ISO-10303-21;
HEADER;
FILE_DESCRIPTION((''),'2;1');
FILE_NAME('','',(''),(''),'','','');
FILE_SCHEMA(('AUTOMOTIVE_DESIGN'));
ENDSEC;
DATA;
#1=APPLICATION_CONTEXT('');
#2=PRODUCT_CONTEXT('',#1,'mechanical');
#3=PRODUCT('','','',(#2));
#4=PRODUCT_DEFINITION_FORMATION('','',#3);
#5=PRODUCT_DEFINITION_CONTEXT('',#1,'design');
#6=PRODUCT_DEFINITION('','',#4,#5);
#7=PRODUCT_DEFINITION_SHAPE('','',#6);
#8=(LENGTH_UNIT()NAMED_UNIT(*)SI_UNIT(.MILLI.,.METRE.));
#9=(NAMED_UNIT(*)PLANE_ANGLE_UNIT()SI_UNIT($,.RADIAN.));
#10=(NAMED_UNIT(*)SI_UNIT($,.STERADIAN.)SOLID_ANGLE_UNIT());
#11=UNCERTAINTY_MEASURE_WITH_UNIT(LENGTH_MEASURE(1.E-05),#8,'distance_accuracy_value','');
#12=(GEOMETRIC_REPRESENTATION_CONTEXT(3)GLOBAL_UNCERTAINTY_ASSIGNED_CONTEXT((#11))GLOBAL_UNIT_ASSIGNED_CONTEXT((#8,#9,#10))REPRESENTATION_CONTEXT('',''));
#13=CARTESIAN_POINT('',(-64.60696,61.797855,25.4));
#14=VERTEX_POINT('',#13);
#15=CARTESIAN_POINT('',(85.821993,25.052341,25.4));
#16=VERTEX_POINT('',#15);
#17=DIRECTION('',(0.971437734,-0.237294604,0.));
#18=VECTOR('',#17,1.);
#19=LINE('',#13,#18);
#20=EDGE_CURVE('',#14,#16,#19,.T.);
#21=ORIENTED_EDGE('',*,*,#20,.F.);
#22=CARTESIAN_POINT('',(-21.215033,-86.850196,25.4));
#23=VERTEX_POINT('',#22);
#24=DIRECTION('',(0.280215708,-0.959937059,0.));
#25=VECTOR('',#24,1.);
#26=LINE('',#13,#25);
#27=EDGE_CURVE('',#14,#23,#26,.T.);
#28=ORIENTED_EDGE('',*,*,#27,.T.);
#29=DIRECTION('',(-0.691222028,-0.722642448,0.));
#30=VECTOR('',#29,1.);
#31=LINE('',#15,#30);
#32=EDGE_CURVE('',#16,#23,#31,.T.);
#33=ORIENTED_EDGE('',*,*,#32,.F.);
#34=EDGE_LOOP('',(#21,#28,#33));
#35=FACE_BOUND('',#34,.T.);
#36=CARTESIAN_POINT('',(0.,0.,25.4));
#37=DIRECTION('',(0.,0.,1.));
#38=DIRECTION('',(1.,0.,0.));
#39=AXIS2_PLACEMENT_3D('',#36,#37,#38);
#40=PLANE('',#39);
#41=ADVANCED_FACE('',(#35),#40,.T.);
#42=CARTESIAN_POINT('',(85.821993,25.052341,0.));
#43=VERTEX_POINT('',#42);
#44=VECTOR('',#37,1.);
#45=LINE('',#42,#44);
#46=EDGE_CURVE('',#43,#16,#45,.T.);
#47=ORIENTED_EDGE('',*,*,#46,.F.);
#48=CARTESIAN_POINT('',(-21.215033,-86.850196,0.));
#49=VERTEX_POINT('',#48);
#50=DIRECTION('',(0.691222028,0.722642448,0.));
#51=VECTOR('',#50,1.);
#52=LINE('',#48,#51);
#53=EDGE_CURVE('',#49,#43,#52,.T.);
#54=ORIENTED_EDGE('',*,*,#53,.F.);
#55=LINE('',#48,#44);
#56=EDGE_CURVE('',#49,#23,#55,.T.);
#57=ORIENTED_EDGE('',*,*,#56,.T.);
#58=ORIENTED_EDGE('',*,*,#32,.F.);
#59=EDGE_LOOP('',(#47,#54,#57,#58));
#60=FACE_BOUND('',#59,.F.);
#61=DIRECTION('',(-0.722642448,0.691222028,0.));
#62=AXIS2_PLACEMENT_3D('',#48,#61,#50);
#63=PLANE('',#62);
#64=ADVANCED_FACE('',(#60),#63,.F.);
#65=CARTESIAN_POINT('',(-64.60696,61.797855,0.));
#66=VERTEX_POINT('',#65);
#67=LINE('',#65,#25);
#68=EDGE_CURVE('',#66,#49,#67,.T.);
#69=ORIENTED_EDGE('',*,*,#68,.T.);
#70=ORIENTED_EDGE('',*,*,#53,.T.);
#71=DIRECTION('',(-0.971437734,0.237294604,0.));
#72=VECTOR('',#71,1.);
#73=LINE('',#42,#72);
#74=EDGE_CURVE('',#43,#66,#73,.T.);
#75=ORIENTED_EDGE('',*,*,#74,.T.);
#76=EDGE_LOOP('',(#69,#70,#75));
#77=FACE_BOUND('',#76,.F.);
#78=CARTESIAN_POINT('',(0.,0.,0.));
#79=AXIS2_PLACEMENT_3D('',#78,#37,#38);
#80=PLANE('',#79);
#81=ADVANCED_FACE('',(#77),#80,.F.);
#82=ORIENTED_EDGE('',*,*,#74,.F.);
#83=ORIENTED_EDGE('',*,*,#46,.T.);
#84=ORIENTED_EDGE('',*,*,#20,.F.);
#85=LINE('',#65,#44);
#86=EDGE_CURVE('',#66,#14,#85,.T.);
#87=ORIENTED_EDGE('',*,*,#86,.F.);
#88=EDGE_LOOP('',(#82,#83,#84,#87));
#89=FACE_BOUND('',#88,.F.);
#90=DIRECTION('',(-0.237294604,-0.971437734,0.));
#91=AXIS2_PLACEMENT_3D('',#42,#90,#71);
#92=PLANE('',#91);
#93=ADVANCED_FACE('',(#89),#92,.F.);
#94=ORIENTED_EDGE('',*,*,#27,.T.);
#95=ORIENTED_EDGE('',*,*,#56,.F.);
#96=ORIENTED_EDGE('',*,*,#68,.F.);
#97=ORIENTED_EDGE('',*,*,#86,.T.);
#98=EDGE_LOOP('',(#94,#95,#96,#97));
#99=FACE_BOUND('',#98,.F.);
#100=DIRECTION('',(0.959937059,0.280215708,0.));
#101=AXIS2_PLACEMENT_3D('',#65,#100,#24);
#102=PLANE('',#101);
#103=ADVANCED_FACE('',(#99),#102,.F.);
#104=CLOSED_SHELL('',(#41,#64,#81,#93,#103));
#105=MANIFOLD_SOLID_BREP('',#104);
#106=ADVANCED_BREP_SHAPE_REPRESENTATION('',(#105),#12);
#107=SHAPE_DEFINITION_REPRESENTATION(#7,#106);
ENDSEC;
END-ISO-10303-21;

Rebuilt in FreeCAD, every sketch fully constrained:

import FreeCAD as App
import Part
import Sketcher
from FreeCAD import Vector
Q = App.Units.Quantity

doc = App.newDocument("Part")
body = doc.addObject("PartDesign::Body", "Body")

# Sketch on XY plane
sketch1 = doc.addObject("Sketcher::SketchObject", "Sketch")
body.addObject(sketch1)
sketch1.AttachmentSupport = (doc.XY_Plane, [""])
sketch1.MapMode = "FlatFace"
sketch1.addGeometry(Part.LineSegment(Vector(85.821993, 25.052341, 0), Vector(-64.60696, 61.797855, 0)), False)
sketch1.addGeometry(Part.LineSegment(Vector(-64.60696, 61.797855, 0), Vector(-21.215033, -86.850196, 0)), False)
sketch1.addGeometry(Part.LineSegment(Vector(-21.215033, -86.850196, 0), Vector(85.821993, 25.052341, 0)), False)
sketch1.addConstraint(Sketcher.Constraint("Coincident", 0, 2, 1, 1))
sketch1.addConstraint(Sketcher.Constraint("Coincident", 1, 2, 2, 1))
sketch1.addConstraint(Sketcher.Constraint("Coincident", 2, 2, 0, 1))
sketch1.addConstraint(Sketcher.Constraint("Equal", 0, 1))
sketch1.addConstraint(Sketcher.Constraint("Equal", 1, 2))
sketch1.addConstraint(Sketcher.Constraint("DistanceX", 0, 2, -1, 1, Q("64.60696 mm")))
sketch1.addConstraint(Sketcher.Constraint("DistanceY", -1, 1, 2, 2, Q("25.052341 mm")))
sketch1.addConstraint(Sketcher.Constraint("DistanceY", 1, 2, 0, 2, Q("148.648051 mm")))
sketch1.addConstraint(Sketcher.Constraint("Distance", 0, Q("154.851873 mm")))
pad1 = doc.addObject("PartDesign::Pad", "Pad")
body.addObject(pad1)
pad1.Profile = sketch1
pad1.Length = Q("1 in")

# Sketch on XY plane
sketch2 = doc.addObject("Sketcher::SketchObject", "Sketch001")
body.addObject(sketch2)
sketch2.AttachmentSupport = (doc.XY_Plane, [""])
sketch2.MapMode = "FlatFace"
sketch2.AttachmentOffset = App.Placement(Vector(0, 0, 1 * 25.4), App.Rotation())
sketch2.addGeometry(Part.LineSegment(Vector(32.30348, -30.898928, 0), Vector(10.607516, 43.425098, 0)), False)
sketch2.addGeometry(Part.LineSegment(Vector(10.607516, 43.425098, 0), Vector(-42.910996, -12.52617, 0)), False)
sketch2.addGeometry(Part.LineSegment(Vector(-42.910996, -12.52617, 0), Vector(32.30348, -30.898928, 0)), False)
sketch2.addConstraint(Sketcher.Constraint("Coincident", 0, 2, 1, 1))
sketch2.addConstraint(Sketcher.Constraint("Coincident", 1, 2, 2, 1))
sketch2.addConstraint(Sketcher.Constraint("Coincident", 2, 2, 0, 1))
sketch2.addConstraint(Sketcher.Constraint("Equal", 0, 1))
sketch2.addConstraint(Sketcher.Constraint("Equal", 1, 2))
sketch2.addConstraint(Sketcher.Constraint("DistanceX", 1, 2, 2, 2, Q("2.9611998 in")))
sketch2.addConstraint(Sketcher.Constraint("DistanceY", 1, 2, -1, 1, Q("12.52617 mm")))
sketch2.addConstraint(Sketcher.Constraint("DistanceX", -1, 1, 2, 2, Q("32.30348 mm")))
sketch2.addConstraint(Sketcher.Constraint("DistanceY", 2, 2, -1, 1, Q("30.898928 mm")))
pocket1 = doc.addObject("PartDesign::Pocket", "Pocket")
body.addObject(pocket1)
pocket1.Profile = sketch2
pocket1.Length = Q("0.05 in")
pocket1.Reversed = True

doc.recompute()
